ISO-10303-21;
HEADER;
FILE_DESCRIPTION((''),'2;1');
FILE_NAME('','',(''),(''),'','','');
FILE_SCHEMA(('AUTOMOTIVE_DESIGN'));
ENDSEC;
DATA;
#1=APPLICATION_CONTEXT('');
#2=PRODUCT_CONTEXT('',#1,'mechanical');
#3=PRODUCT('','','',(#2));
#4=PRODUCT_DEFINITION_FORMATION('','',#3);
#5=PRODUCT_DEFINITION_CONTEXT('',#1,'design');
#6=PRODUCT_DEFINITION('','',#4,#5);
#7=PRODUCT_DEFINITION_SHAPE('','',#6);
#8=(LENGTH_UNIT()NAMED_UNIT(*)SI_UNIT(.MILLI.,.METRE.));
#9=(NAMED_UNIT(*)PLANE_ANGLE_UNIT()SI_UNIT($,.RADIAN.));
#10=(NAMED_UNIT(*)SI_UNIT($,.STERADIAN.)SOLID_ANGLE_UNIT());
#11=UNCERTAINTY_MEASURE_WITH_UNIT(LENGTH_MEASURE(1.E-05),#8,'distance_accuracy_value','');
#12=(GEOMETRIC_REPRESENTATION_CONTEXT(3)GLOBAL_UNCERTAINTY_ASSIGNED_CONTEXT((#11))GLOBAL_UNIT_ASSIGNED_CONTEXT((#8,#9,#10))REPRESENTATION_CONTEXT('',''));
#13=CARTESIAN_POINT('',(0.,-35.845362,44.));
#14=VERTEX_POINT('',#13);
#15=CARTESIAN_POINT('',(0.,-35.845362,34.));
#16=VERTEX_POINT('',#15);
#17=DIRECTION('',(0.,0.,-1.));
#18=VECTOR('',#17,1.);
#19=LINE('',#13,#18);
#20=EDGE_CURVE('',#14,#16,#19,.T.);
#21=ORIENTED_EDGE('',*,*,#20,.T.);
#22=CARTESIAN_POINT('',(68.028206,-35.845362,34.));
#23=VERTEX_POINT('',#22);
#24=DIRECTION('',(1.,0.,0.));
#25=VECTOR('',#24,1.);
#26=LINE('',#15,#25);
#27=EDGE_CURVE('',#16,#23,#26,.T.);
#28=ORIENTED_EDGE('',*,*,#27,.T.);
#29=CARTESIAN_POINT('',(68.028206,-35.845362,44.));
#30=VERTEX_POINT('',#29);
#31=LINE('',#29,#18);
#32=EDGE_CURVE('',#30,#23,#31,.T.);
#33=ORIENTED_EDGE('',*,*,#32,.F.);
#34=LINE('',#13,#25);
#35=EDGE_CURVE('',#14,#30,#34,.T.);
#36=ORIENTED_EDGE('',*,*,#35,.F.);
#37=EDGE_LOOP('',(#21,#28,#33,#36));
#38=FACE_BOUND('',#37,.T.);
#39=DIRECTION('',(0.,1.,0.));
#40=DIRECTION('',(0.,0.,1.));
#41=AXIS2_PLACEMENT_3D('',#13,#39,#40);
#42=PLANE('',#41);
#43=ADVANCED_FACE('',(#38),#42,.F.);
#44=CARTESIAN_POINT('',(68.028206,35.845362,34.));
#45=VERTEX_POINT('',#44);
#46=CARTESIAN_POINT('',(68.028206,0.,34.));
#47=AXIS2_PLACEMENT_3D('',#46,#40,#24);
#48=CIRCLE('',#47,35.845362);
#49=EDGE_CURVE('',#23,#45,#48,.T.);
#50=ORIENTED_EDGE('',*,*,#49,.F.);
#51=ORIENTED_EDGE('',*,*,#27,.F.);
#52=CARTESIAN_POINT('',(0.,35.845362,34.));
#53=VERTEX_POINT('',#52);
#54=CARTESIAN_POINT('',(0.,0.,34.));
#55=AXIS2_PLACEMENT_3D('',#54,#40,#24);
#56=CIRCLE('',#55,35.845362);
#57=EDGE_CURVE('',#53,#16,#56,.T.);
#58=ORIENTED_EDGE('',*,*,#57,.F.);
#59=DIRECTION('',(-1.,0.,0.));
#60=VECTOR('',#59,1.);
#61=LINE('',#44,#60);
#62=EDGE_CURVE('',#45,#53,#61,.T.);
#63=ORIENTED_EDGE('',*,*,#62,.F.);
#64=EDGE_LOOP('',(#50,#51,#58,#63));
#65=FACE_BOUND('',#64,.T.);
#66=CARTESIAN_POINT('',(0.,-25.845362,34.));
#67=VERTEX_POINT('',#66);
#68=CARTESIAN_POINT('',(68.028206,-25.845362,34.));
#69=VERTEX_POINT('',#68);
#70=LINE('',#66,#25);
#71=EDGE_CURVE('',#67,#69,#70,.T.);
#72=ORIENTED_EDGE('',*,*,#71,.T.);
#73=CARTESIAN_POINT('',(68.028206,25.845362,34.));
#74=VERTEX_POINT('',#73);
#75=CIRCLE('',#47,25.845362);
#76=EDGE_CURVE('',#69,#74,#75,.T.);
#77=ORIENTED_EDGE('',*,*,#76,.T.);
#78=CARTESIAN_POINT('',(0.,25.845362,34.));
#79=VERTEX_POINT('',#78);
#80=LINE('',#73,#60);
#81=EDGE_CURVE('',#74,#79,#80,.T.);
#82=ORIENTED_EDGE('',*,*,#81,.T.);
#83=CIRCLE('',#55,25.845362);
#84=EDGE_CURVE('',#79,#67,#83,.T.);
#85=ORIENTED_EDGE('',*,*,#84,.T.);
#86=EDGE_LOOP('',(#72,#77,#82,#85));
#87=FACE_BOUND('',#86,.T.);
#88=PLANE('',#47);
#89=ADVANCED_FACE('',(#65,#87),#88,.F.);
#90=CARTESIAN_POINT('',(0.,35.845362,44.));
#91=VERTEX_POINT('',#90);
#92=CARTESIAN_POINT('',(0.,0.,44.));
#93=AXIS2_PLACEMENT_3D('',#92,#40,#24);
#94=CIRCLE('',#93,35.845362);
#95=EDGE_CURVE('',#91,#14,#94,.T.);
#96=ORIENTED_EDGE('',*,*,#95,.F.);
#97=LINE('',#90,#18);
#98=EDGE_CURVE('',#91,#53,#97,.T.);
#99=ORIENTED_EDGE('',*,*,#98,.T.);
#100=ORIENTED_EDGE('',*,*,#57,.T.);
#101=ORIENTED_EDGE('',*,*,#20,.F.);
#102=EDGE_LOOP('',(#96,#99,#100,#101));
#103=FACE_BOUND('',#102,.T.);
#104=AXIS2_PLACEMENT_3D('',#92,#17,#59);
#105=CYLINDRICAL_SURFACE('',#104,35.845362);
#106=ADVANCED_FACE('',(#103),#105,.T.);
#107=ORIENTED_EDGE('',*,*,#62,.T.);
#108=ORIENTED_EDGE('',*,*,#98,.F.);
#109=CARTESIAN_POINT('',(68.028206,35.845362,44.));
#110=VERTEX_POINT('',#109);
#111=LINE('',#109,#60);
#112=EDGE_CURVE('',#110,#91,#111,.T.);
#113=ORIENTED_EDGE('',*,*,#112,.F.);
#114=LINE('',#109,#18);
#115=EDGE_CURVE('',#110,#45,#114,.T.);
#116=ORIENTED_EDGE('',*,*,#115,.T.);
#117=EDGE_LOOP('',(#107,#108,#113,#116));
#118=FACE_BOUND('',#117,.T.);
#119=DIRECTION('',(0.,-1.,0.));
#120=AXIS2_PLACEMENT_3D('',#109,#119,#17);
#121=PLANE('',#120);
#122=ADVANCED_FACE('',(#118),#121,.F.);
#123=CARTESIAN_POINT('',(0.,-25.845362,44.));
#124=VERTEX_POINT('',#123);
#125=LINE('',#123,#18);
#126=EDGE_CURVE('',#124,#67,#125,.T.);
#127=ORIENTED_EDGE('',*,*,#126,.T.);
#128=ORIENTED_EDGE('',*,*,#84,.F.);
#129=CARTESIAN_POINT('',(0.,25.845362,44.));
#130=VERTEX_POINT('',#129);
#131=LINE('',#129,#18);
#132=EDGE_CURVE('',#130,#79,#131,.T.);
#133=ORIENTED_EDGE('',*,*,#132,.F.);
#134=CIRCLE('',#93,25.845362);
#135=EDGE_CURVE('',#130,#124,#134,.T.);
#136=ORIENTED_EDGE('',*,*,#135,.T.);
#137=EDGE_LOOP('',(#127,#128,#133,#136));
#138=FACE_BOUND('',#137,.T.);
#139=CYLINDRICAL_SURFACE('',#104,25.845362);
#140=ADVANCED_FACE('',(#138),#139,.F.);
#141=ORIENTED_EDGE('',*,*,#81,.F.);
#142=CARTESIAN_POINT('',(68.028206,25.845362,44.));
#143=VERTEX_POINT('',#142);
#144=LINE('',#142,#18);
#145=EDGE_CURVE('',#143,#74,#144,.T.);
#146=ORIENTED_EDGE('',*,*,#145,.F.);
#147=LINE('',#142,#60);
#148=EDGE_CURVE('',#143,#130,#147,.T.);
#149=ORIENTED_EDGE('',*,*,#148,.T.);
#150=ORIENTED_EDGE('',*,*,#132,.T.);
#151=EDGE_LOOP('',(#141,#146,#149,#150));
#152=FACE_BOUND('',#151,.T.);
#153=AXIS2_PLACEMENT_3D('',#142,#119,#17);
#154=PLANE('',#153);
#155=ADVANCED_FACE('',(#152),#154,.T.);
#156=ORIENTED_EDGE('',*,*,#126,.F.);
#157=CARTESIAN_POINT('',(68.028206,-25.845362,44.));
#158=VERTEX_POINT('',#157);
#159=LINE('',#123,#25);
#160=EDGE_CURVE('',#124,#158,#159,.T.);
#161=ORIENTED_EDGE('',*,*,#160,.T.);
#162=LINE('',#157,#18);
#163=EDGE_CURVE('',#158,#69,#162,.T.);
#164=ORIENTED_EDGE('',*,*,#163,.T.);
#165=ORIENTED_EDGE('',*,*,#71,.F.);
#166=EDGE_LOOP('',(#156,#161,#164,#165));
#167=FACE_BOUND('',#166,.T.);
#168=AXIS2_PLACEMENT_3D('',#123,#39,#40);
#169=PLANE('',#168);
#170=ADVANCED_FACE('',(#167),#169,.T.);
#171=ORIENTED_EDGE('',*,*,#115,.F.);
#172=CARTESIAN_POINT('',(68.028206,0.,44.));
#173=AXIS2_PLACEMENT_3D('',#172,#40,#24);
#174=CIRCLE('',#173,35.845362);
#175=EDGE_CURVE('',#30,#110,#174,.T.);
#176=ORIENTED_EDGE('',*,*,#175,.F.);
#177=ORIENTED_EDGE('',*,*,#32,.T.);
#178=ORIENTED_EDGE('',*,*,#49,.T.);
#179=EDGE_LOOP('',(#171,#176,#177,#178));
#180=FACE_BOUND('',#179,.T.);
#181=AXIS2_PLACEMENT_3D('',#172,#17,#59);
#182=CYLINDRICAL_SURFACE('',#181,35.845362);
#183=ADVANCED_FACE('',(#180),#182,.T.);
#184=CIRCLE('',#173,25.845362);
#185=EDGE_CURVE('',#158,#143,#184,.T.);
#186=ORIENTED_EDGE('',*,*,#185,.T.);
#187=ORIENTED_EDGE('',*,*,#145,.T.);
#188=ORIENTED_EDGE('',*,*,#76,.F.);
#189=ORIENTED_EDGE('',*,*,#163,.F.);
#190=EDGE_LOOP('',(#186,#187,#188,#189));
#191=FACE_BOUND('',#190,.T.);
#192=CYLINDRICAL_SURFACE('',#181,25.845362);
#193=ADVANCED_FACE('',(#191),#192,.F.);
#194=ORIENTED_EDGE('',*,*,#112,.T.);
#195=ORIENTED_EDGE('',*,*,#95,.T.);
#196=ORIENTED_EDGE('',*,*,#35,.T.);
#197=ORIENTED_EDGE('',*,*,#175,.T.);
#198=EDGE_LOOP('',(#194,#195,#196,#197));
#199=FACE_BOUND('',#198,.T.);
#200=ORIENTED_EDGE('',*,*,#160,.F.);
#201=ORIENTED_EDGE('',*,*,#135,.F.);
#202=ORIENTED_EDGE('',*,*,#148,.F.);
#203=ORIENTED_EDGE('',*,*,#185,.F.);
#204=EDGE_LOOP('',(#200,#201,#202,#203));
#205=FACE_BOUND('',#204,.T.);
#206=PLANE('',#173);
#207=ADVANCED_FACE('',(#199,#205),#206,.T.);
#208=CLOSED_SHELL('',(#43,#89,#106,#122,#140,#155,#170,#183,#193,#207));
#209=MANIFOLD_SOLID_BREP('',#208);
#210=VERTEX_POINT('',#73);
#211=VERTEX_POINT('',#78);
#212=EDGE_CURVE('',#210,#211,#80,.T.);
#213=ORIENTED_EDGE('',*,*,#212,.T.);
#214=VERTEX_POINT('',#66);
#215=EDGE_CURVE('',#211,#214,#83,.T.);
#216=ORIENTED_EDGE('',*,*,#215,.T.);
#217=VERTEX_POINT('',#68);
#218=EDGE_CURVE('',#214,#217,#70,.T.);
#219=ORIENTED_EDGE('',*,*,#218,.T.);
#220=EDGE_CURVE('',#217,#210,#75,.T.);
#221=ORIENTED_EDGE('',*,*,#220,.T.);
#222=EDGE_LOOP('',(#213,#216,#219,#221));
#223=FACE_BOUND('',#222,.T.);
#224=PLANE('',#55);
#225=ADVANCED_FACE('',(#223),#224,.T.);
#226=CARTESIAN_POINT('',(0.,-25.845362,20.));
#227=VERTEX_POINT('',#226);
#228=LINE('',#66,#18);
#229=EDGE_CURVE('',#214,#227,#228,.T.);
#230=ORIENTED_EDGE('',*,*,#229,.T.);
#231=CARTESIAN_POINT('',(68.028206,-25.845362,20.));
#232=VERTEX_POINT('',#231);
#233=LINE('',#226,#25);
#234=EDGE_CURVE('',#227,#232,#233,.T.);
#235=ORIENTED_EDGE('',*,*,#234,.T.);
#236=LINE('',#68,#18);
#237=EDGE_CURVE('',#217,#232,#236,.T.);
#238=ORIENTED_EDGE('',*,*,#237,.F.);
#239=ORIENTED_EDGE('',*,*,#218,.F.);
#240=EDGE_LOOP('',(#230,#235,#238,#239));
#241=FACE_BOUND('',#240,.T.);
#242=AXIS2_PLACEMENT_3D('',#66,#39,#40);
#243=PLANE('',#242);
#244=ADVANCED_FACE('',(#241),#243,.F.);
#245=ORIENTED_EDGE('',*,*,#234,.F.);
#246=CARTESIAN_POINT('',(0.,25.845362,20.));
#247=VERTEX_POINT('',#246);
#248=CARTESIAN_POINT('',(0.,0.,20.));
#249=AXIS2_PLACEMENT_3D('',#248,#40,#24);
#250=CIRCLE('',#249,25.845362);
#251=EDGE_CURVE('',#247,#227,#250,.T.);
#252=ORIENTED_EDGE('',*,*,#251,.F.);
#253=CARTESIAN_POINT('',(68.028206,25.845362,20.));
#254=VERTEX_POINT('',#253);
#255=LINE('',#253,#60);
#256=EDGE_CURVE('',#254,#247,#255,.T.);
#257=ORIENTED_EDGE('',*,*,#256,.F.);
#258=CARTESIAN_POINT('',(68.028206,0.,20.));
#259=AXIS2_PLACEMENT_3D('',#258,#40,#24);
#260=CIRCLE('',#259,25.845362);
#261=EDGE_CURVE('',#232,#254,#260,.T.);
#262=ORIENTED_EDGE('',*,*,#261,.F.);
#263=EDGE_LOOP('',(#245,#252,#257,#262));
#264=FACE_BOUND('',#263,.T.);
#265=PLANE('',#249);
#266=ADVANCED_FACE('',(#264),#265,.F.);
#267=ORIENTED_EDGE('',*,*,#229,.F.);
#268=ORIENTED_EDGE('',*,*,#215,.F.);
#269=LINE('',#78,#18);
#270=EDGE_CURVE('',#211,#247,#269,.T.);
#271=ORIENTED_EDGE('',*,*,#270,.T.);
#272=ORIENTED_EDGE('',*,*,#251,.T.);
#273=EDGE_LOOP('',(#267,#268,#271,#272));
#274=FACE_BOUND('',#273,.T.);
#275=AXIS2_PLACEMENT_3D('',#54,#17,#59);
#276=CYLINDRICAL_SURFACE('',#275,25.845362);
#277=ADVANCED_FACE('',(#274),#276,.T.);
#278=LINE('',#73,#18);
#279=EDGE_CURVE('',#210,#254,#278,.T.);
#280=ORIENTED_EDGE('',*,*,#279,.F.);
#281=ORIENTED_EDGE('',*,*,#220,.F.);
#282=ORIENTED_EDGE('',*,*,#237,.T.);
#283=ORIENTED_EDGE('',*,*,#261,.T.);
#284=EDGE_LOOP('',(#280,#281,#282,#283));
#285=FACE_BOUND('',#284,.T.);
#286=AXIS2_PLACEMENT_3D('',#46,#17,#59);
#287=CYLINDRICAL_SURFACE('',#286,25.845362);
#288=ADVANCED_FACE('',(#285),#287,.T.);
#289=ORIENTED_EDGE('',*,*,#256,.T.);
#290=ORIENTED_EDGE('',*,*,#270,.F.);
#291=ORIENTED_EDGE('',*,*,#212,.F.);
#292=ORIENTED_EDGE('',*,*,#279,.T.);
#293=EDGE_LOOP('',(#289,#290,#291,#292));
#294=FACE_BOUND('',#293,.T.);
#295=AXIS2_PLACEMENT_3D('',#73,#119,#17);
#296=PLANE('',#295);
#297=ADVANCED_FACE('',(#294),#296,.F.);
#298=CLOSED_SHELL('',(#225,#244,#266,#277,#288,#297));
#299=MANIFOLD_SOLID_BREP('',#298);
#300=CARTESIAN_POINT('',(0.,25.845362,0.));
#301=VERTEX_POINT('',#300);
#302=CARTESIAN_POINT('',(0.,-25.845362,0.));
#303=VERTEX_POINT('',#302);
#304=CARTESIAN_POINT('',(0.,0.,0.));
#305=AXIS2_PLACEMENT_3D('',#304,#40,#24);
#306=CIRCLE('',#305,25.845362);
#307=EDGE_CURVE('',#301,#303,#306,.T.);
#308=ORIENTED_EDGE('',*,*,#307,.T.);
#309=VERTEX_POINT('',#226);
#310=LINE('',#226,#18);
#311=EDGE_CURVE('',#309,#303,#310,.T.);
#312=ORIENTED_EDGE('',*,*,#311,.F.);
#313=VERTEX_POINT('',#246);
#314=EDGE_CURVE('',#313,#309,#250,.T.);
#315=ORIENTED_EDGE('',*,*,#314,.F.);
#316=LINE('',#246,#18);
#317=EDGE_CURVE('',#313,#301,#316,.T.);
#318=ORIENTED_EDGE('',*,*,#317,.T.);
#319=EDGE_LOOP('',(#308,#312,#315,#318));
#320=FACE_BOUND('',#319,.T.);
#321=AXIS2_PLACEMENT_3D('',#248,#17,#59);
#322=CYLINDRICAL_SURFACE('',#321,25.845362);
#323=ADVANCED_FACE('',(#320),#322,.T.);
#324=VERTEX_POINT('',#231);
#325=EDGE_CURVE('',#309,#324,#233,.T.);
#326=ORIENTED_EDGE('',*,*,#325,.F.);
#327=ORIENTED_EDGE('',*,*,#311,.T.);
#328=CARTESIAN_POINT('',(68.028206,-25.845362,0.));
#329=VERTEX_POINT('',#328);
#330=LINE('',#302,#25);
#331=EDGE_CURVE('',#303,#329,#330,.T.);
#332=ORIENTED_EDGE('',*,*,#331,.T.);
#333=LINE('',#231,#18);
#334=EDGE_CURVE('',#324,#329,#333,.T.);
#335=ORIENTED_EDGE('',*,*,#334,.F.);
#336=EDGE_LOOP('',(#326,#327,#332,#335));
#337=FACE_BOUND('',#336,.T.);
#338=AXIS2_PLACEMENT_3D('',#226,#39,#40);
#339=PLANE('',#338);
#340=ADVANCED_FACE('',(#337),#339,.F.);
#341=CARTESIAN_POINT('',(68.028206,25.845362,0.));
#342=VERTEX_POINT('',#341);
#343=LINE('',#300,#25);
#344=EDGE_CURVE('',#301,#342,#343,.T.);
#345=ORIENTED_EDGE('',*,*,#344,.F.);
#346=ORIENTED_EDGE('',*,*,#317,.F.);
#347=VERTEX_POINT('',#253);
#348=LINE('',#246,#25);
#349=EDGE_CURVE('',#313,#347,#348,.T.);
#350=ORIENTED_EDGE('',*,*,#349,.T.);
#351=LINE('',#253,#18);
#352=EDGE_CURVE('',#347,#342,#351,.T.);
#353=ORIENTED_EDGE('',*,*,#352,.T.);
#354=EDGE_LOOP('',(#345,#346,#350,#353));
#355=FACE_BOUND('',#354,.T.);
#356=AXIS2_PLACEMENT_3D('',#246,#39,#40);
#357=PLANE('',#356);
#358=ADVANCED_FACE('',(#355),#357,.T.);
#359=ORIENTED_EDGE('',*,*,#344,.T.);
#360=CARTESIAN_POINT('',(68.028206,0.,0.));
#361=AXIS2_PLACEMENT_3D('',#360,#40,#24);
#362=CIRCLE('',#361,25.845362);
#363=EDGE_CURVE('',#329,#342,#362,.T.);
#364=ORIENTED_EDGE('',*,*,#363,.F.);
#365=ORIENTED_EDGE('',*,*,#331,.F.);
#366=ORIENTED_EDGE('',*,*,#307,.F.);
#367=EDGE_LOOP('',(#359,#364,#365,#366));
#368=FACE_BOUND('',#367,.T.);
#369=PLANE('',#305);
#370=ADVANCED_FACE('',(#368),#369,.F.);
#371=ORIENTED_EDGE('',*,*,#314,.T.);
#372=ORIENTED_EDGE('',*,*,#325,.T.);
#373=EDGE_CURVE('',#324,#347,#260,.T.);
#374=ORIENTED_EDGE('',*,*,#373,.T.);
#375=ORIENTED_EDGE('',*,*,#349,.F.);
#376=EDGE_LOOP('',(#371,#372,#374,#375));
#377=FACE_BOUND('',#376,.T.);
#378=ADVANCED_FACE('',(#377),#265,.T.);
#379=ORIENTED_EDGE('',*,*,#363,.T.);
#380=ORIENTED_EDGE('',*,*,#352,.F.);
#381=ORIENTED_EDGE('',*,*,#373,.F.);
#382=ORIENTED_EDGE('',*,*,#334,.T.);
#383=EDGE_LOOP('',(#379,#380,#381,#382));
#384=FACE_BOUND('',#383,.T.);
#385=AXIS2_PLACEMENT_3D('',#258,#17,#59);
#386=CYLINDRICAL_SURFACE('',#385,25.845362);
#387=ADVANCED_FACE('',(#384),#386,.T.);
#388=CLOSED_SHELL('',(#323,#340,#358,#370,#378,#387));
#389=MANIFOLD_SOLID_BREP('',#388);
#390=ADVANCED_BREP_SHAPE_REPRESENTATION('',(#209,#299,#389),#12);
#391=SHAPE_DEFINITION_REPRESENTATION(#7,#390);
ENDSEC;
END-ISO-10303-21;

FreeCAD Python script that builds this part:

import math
import FreeCAD as App
import Part
import Sketcher
Q = App.Units.Quantity

doc = App.newDocument("Part")
body = doc.addObject("PartDesign::Body", "Body")

sketch1 = body.newObject("Sketcher::SketchObject", "Sketch")
sketch1.AttachmentSupport = (doc.getObject("XY_Plane"), [""])
sketch1.MapMode = "FlatFace"
sketch1.addGeometry([
    Part.LineSegment(App.Vector(68, 26, 0), App.Vector(0, 26, 0)),
    Part.ArcOfCircle(Part.Circle(App.Vector(0, 0, 0), App.Vector(0, 0, 1), 26), math.radians(90), math.radians(270)),
    Part.LineSegment(App.Vector(0, -26, 0), App.Vector(68, -26, 0)),
    Part.ArcOfCircle(Part.Circle(App.Vector(68, 0, 0), App.Vector(0, 0, 1), 26), math.radians(-90), math.radians(90)),
], False)
sketch1.addConstraint([
    Sketcher.Constraint("Tangent", 0, 2, 1, 1),
    Sketcher.Constraint("Tangent", 1, 2, 2, 1),
    Sketcher.Constraint("Tangent", 2, 2, 3, 1),
    Sketcher.Constraint("Tangent", 3, 2, 0, 1),
    Sketcher.Constraint("Horizontal", 0),
    Sketcher.Constraint("Horizontal", 2),
    Sketcher.Constraint("Coincident", 1, 3, -1, 1),
    Sketcher.Constraint("Radius", 1, Q("25.845362 mm")),
    Sketcher.Constraint("DistanceX", 0, 2, 0, 1, Q("68.028206 mm")),
])
pad1 = body.newObject("PartDesign::Pad", "Pad")
pad1.Profile = sketch1
pad1.Length = 20
body2 = doc.addObject("PartDesign::Body", "Body001")

sketch2 = body2.newObject("Sketcher::SketchObject", "Sketch001")
sketch2.AttachmentSupport = (doc.getObject("XY_Plane001"), [""])
sketch2.MapMode = "FlatFace"
sketch2.AttachmentOffset = App.Placement(App.Vector(0, 0, 20), App.Rotation())
sketch2.addGeometry([
    Part.LineSegment(App.Vector(0, -26, 0), App.Vector(68, -26, 0)),
    Part.ArcOfCircle(Part.Circle(App.Vector(68, 0, 0), App.Vector(0, 0, 1), 26), math.radians(-90), math.radians(90)),
    Part.LineSegment(App.Vector(68, 26, 0), App.Vector(0, 26, 0)),
    Part.ArcOfCircle(Part.Circle(App.Vector(0, 0, 0), App.Vector(0, 0, 1), 26), math.radians(90), math.radians(270)),
], False)
sketch2.addConstraint([
    Sketcher.Constraint("Tangent", 0, 2, 1, 1),
    Sketcher.Constraint("Tangent", 1, 2, 2, 1),
    Sketcher.Constraint("Tangent", 2, 2, 3, 1),
    Sketcher.Constraint("Tangent", 3, 2, 0, 1),
    Sketcher.Constraint("Horizontal", 0),
    Sketcher.Constraint("Horizontal", 2),
    Sketcher.Constraint("Coincident", 3, 3, -1, 1),
    Sketcher.Constraint("Radius", 1, Q("25.845362 mm")),
    Sketcher.Constraint("DistanceX", 0, 1, 0, 2, Q("68.028206 mm")),
])
pad2 = body2.newObject("PartDesign::Pad", "Pad001")
pad2.Profile = sketch2
pad2.Length = 14
body3 = doc.addObject("PartDesign::Body", "Body002")

sketch3 = body3.newObject("Sketcher::SketchObject", "Sketch002")
sketch3.AttachmentSupport = (doc.getObject("XY_Plane002"), [""])
sketch3.MapMode = "FlatFace"
sketch3.AttachmentOffset = App.Placement(App.Vector(0, 0, 34), App.Rotation())
sketch3.addGeometry([
    Part.LineSegment(App.Vector(68, 36, 0), App.Vector(0, 36, 0)),
    Part.ArcOfCircle(Part.Circle(App.Vector(0, 0, 0), App.Vector(0, 0, 1), 36), math.radians(90), math.radians(270)),
    Part.LineSegment(App.Vector(0, -36, 0), App.Vector(68, -36, 0)),
    Part.ArcOfCircle(Part.Circle(App.Vector(68, 0, 0), App.Vector(0, 0, 1), 36), math.radians(-90), math.radians(90)),
    Part.LineSegment(App.Vector(0, 26, 0), App.Vector(68, 26, 0)),
    Part.ArcOfCircle(Part.Circle(App.Vector(68, 0, 0), App.Vector(0, 0, 1), 26), math.radians(-90), math.radians(90)),
    Part.LineSegment(App.Vector(68, -26, 0), App.Vector(0, -26, 0)),
    Part.ArcOfCircle(Part.Circle(App.Vector(0, 0, 0), App.Vector(0, 0, 1), 26), math.radians(90), math.radians(270)),
], False)
sketch3.addConstraint([
    Sketcher.Constraint("Tangent", 0, 2, 1, 1),
    Sketcher.Constraint("Tangent", 1, 2, 2, 1),
    Sketcher.Constraint("Tangent", 2, 2, 3, 1),
    Sketcher.Constraint("Tangent", 3, 2, 0, 1),
    Sketcher.Constraint("Tangent", 4, 2, 5, 2),
    Sketcher.Constraint("Tangent", 5, 1, 6, 1),
    Sketcher.Constraint("Tangent", 6, 2, 7, 2),
    Sketcher.Constraint("Tangent", 7, 1, 4, 1),
    Sketcher.Constraint("Horizontal", 0),
    Sketcher.Constraint("Horizontal", 2),
    Sketcher.Constraint("Horizontal", 4),
    Sketcher.Constraint("Horizontal", 6),
    Sketcher.Constraint("Coincident", 1, 3, -1, 1),
    Sketcher.Constraint("Coincident", 7, 3, -1, 1),
    Sketcher.Constraint("Vertical", 5, 3, 2, 2),
    Sketcher.Constraint("DistanceY", 4, 2, 3, 2, Q("10 mm")),
    Sketcher.Constraint("Radius", 1, Q("35.845362 mm")),
    Sketcher.Constraint("DistanceX", 0, 2, 0, 1, Q("68.028206 mm")),
])
pad3 = body3.newObject("PartDesign::Pad", "Pad002")
pad3.Profile = sketch3
pad3.Length = 10

doc.recompute()
